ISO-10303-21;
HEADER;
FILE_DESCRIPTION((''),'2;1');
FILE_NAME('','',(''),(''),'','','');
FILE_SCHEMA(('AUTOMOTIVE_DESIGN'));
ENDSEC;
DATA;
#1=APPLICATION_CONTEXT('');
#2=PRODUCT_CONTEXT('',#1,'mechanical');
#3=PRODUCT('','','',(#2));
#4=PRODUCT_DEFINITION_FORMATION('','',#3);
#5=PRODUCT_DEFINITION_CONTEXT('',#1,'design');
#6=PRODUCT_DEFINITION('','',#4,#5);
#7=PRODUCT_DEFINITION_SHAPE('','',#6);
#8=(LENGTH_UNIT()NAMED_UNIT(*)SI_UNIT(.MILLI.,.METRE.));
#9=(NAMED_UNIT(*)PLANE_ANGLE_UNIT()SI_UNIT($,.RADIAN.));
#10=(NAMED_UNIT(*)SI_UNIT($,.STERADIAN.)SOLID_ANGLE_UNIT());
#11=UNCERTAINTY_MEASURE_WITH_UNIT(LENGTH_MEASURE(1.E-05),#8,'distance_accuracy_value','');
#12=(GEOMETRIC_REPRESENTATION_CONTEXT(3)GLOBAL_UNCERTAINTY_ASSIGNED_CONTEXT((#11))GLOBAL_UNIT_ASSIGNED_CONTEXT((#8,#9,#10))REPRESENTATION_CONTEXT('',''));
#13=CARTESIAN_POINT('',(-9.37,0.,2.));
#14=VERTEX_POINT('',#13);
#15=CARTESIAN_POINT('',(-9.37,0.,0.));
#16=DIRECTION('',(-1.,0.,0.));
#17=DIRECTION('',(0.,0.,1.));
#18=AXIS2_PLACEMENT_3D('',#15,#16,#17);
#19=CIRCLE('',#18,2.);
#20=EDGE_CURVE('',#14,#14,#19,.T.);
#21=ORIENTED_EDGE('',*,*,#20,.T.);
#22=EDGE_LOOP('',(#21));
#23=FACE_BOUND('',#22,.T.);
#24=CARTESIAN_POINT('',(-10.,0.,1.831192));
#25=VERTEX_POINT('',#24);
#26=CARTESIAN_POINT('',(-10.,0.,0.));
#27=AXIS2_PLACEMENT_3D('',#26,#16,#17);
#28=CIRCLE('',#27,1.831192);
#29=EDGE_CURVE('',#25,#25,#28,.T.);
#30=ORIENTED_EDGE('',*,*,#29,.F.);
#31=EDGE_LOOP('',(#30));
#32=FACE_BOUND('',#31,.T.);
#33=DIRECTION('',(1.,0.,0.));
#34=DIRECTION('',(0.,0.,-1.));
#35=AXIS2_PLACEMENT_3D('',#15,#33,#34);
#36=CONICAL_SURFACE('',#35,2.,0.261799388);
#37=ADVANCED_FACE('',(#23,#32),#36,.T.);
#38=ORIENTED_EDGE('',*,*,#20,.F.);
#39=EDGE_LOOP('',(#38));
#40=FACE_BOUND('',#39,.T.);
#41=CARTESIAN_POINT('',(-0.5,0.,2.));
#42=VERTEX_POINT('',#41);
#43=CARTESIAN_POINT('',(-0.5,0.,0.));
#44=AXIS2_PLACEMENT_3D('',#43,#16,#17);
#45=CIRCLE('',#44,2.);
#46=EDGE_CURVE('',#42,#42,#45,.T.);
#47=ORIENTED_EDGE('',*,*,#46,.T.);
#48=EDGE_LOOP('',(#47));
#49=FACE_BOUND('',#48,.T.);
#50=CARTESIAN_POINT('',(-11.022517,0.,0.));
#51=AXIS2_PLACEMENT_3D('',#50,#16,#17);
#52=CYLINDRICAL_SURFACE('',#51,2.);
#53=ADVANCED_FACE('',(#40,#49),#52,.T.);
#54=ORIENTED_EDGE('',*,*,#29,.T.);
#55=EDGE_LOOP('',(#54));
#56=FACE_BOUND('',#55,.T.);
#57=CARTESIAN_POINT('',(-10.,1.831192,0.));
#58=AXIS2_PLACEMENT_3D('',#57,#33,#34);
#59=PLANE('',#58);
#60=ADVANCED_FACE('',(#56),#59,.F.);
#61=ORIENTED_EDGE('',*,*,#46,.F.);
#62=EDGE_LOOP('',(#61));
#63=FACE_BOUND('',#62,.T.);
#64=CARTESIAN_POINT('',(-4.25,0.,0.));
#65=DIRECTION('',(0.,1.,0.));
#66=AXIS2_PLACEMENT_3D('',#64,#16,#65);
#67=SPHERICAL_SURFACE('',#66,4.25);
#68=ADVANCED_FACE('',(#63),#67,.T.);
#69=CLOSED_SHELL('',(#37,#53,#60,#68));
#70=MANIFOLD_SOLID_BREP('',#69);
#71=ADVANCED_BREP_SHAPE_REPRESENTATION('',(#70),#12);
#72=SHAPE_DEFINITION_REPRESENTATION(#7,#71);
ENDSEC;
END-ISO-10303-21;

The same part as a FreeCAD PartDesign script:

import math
import FreeCAD as App
import Part
import Sketcher
from FreeCAD import Vector
Q = App.Units.Quantity

doc = App.newDocument("Part")
body = doc.addObject("PartDesign::Body", "Body")

sketch1 = doc.addObject("Sketcher::SketchObject", "Sketch")
body.addObject(sketch1)
sketch1.AttachmentSupport = (doc.XY_Plane, [""])
sketch1.MapMode = "FlatFace"
sketch1.addGeometry([
    Part.LineSegment(Vector(-0.5, 2, 0), Vector(-9.4, 2, 0)),
    Part.LineSegment(Vector(-9.4, 2, 0), Vector(-10, 1.8, 0)),
    Part.LineSegment(Vector(-10, 1.8, 0), Vector(-10, 0, 0)),
    Part.LineSegment(Vector(-10, 0, 0), Vector(0, 0, 0)),
    Part.ArcOfCircle(Part.Circle(Vector(-4.2, 0, 0), Vector(0, 0, 1), 4.2), math.radians(0), math.radians(28)),
], False)
sketch1.addConstraint([
    Sketcher.Constraint("Coincident", 0, 2, 1, 1),
    Sketcher.Constraint("Coincident", 1, 2, 2, 1),
    Sketcher.Constraint("Coincident", 2, 2, 3, 1),
    Sketcher.Constraint("Coincident", 3, 2, 4, 1),
    Sketcher.Constraint("Coincident", 4, 2, 0, 1),
    Sketcher.Constraint("Horizontal", 0),
    Sketcher.Constraint("Vertical", 2),
    Sketcher.Constraint("Horizontal", 3),
    Sketcher.Constraint("Coincident", 3, 2, -1, 1),
    Sketcher.Constraint("PointOnObject", 4, 3, -1),
    Sketcher.Constraint("DistanceX", 3, 1, 3, 2, Q("10 mm")),
    Sketcher.Constraint("Angle", 1, Q("-165 deg")),
    Sketcher.Constraint("Radius", 4, Q("4.25 mm")),
    Sketcher.Constraint("DistanceY", -1, 1, 0, 2, Q("2 mm")),
    Sketcher.Constraint("DistanceX", 0, 2, 0, 1, Q("8.87 mm")),
])
revolution = doc.addObject("PartDesign::Revolution", "Revolution")
body.addObject(revolution)
revolution.Profile = sketch1
revolution.ReferenceAxis = (sketch1, ["H_Axis"])
revolution.Angle = 360

doc.recompute()
